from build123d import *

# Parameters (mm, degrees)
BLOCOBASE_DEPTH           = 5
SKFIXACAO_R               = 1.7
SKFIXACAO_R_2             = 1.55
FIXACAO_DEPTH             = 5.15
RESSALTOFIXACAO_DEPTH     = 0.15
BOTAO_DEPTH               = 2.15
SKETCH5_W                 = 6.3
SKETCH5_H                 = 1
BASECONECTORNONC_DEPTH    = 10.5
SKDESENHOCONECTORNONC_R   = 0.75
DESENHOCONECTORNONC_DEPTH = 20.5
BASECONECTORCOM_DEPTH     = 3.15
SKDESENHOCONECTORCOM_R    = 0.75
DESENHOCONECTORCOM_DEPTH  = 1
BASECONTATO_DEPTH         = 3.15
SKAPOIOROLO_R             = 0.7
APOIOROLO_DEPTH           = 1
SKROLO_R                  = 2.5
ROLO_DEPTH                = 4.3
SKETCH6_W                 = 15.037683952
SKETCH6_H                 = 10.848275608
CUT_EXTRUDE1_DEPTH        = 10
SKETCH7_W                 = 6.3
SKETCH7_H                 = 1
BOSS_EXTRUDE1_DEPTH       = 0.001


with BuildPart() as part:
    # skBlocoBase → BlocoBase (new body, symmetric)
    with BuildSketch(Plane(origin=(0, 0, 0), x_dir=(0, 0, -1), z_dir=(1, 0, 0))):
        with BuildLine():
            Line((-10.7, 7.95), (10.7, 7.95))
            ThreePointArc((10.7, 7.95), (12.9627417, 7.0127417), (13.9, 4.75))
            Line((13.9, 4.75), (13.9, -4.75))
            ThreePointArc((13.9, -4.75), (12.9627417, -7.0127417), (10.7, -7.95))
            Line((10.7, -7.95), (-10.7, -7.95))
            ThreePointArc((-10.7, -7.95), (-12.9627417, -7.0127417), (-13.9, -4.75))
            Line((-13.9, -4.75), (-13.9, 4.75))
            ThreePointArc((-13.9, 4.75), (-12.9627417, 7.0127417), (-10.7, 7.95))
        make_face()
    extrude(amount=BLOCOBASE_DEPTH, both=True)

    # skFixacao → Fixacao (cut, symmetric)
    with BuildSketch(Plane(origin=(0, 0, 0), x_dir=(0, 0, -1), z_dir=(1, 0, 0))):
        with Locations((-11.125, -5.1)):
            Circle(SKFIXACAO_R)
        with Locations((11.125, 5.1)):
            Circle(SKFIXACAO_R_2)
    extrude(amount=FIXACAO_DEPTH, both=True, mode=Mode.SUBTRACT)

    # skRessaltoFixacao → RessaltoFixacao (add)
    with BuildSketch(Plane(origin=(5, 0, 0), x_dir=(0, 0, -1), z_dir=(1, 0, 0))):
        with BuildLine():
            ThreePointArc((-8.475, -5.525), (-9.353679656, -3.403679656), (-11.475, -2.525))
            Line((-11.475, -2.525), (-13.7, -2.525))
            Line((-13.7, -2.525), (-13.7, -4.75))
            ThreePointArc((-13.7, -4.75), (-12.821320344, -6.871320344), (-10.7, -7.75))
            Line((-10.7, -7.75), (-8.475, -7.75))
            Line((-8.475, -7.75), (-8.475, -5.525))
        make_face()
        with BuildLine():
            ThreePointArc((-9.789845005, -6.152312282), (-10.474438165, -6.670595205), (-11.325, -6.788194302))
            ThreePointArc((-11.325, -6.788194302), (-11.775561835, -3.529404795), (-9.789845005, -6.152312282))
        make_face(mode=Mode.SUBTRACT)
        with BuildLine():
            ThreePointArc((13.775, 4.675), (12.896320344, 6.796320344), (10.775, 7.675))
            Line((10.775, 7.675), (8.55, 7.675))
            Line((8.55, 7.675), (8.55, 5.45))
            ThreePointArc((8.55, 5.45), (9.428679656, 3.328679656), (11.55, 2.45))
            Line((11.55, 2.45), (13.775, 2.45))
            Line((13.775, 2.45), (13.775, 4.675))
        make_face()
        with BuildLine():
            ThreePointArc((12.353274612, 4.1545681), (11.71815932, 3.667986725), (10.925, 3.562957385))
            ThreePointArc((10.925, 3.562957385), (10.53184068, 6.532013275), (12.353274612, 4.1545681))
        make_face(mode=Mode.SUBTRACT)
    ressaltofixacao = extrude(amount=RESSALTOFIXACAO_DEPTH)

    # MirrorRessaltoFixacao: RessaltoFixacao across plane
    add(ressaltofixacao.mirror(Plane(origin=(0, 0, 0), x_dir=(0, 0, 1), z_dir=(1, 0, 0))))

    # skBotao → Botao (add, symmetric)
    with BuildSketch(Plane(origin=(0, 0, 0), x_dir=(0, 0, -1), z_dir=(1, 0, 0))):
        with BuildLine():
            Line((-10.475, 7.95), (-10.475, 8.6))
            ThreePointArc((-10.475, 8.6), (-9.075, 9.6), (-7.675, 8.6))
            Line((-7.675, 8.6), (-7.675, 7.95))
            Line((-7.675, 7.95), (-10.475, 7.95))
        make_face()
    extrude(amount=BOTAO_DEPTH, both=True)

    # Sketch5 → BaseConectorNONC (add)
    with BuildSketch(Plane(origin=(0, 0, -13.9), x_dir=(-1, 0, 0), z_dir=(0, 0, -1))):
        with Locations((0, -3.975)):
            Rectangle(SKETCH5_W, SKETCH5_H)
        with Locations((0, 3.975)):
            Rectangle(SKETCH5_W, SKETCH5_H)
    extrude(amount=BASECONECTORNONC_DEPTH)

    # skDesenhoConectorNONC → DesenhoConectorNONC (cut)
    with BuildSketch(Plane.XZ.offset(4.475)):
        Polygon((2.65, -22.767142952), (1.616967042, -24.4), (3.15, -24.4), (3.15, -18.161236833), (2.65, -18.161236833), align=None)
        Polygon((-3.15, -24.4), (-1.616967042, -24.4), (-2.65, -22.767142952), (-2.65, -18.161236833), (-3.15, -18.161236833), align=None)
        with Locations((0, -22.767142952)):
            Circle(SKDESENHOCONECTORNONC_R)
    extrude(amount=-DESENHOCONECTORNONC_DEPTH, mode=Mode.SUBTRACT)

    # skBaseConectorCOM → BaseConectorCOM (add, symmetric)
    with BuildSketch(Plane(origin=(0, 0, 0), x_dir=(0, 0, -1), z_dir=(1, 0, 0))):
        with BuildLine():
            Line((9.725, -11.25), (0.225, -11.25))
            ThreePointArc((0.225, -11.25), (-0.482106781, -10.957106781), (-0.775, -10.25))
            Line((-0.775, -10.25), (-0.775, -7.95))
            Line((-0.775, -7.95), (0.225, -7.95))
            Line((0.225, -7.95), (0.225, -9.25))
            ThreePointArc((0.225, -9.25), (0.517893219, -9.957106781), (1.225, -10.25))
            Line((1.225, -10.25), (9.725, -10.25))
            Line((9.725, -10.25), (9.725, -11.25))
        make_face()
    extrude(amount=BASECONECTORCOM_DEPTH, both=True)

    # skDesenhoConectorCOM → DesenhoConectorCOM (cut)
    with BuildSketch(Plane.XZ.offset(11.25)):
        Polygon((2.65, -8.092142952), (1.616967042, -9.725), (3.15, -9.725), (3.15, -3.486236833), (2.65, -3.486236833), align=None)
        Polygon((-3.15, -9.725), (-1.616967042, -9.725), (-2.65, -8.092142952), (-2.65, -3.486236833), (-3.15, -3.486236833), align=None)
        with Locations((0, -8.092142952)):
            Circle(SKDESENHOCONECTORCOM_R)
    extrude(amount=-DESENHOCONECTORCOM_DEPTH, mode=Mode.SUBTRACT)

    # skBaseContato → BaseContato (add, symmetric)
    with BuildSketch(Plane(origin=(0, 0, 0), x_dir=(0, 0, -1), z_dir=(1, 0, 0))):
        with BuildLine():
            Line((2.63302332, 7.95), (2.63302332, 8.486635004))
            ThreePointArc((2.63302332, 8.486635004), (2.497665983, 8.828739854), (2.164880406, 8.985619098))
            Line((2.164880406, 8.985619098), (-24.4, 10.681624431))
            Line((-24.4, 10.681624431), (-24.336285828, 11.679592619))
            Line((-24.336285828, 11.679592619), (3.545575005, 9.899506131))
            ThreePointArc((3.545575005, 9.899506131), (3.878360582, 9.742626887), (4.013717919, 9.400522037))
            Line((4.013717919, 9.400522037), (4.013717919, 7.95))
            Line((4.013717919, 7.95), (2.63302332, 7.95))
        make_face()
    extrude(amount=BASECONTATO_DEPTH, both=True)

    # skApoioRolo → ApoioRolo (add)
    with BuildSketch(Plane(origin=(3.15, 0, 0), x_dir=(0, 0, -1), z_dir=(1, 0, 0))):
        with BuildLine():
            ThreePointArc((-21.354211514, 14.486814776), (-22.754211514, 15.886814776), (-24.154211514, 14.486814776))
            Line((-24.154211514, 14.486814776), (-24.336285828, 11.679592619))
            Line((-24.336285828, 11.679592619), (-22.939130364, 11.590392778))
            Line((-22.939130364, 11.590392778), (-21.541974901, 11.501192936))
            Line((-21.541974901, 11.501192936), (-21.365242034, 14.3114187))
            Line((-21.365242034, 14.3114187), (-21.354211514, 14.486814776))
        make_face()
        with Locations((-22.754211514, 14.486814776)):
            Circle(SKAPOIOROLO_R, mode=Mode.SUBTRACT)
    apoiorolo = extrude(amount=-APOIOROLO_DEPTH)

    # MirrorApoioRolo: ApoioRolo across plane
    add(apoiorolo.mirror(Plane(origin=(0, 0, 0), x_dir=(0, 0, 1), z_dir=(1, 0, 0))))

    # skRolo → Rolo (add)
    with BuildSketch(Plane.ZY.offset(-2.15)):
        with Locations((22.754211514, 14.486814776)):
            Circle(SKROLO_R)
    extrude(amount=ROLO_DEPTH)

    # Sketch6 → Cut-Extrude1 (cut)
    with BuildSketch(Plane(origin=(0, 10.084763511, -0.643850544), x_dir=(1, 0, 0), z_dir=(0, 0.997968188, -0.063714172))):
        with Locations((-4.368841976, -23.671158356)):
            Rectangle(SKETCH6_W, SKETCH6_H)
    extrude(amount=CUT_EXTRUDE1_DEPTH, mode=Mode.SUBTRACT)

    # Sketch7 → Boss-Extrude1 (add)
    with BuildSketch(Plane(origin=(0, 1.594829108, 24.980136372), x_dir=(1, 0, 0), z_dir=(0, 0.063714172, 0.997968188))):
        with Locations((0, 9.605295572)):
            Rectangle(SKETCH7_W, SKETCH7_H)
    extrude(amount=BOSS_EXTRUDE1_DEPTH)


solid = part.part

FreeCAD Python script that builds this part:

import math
import FreeCAD as App
import Part
import Sketcher
from FreeCAD import Vector
Q = App.Units.Quantity


def add_polygon(sketch, points):
    """Adds a closed chain of lines whose ends are joined by coincident constraints."""
    first, n = sketch.GeometryCount, len(points)
    for a, b in zip(points, points[1:] + points[:1]):
        sketch.addGeometry(Part.LineSegment(App.Vector(*a, 0), App.Vector(*b, 0)), False)
    for i in range(n):
        sketch.addConstraint(Sketcher.Constraint("Coincident", first + i, 2, first + (i + 1) % n, 1))

doc = App.newDocument("Part")
body = doc.addObject("PartDesign::Body", "Body")

# Sketch on YZ plane
sketch1 = body.newObject("Sketcher::SketchObject", "Sketch")
sketch1.AttachmentSupport = (doc.getObject("YZ_Plane"), [""])
sketch1.MapMode = "FlatFace"
sketch1.addGeometry([
    Part.LineSegment(Vector(7.95, -10.7, 0), Vector(7.95, 10.7, 0)),  # 0
    Part.ArcOfCircle(Part.Circle(Vector(4.75, 10.7, 0), Vector(0, 0, 1), 3.2), math.radians(0), math.radians(90)),  # 1
    Part.LineSegment(Vector(4.75, 13.9, 0), Vector(-4.75, 13.9, 0)),  # 2
    Part.ArcOfCircle(Part.Circle(Vector(-4.75, 10.7, 0), Vector(0, 0, 1), 3.2), math.radians(90), math.radians(180)),  # 3
    Part.LineSegment(Vector(-7.95, 10.7, 0), Vector(-7.95, -10.7, 0)),  # 4
    Part.ArcOfCircle(Part.Circle(Vector(-4.75, -10.7, 0), Vector(0, 0, 1), 3.2), math.radians(180), math.radians(270)),  # 5
    Part.LineSegment(Vector(-4.75, -13.9, 0), Vector(4.75, -13.9, 0)),  # 6
    Part.ArcOfCircle(Part.Circle(Vector(4.75, -10.7, 0), Vector(0, 0, 1), 3.2), math.radians(-90), math.radians(0)),  # 7
], False)
sketch1.addConstraint([
    Sketcher.Constraint("Tangent", 0, 2, 1, 1),
    Sketcher.Constraint("Tangent", 1, 2, 2, 1),
    Sketcher.Constraint("Tangent", 2, 2, 3, 1),
    Sketcher.Constraint("Tangent", 3, 2, 4, 1),
    Sketcher.Constraint("Tangent", 4, 2, 5, 1),
    Sketcher.Constraint("Tangent", 5, 2, 6, 1),
    Sketcher.Constraint("Tangent", 6, 2, 7, 1),
    Sketcher.Constraint("Tangent", 7, 2, 0, 1),
    Sketcher.Constraint("Vertical", 0),
    Sketcher.Constraint("Horizontal", 2),
    Sketcher.Constraint("Vertical", 4),
    Sketcher.Constraint("Horizontal", 6),
    Sketcher.Constraint("Equal", 1, 3),
    Sketcher.Constraint("Equal", 3, 5),
    Sketcher.Constraint("Equal", 5, 7),
    Sketcher.Constraint("Symmetric", 1, 3, 5, 3, -1, 1),
    Sketcher.Constraint("Radius", 1, Q("3.2 mm")),
    Sketcher.Constraint("DistanceX", 2, 2, 2, 1, Q("9.5 mm")),
    Sketcher.Constraint("DistanceY", 0, 1, 0, 2, Q("21.4 mm")),
])
pad1 = body.newObject("PartDesign::Pad", "Pad")
pad1.Profile = sketch1
pad1.Length = 10
pad1.Midplane = True

# Sketch on YZ plane
sketch2 = body.newObject("Sketcher::SketchObject", "Sketch001")
sketch2.AttachmentSupport = (doc.getObject("YZ_Plane"), [""])
sketch2.MapMode = "FlatFace"
sketch2.addGeometry([
    Part.Circle(Vector(-5.1, 11.125, 0), Vector(0, 0, 1), 1.7),
    Part.Circle(Vector(5.1, -11.125, 0), Vector(0, 0, 1), 1.55),
], False)
sketch2.addConstraint([
    Sketcher.Constraint("Symmetric", 0, 3, 1, 3, -1, 1),
    Sketcher.Constraint("Diameter", 0, Q("3.4 mm")),
    Sketcher.Constraint("Diameter", 1, Q("3.1 mm")),
    Sketcher.Constraint("DistanceX", 0, 3, -1, 1, Q("5.1 mm")),
    Sketcher.Constraint("DistanceY", 1, 3, 0, 3, Q("22.25 mm")),
])
pocket1 = body.newObject("PartDesign::Pocket", "Pocket")
pocket1.Profile = sketch2
pocket1.Length = 10.3
pocket1.Midplane = True

# Sketch on YZ plane
sketch3 = body.newObject("Sketcher::SketchObject", "Sketch002")
sketch3.AttachmentSupport = (doc.getObject("YZ_Plane"), [""])
sketch3.MapMode = "FlatFace"
sketch3.AttachmentOffset = App.Placement(Vector(0, 0, 5), App.Rotation())
sketch3.addGeometry([
    Part.ArcOfCircle(Part.Circle(Vector(-5.525, 11.475, 0), Vector(0, 0, 1), 3), math.radians(-90), math.radians(0)),  # 0
    Part.LineSegment(Vector(-2.525, 11.475, 0), Vector(-2.525, 13.7, 0)),  # 1
    Part.LineSegment(Vector(-2.525, 13.7, 0), Vector(-4.75, 13.7, 0)),  # 2
    Part.ArcOfCircle(Part.Circle(Vector(-4.75, 10.7, 0), Vector(0, 0, 1), 3), math.radians(90), math.radians(180)),  # 3
    Part.LineSegment(Vector(-7.75, 10.7, 0), Vector(-7.75, 8.475, 0)),  # 4
    Part.LineSegment(Vector(-7.75, 8.475, 0), Vector(-5.525, 8.475, 0)),  # 5
    Part.ArcOfCircle(Part.Circle(Vector(-5.1, 11.125, 0), Vector(0, 0, 1), 1.7), math.radians(-128.243673), math.radians(173.243673)),  # 6
    Part.ArcOfCircle(Part.Circle(Vector(-5.1, 11.125, 0), Vector(0, 0, 1), 1.7), math.radians(173.243673), math.radians(231.756327)),  # 7
    Part.ArcOfCircle(Part.Circle(Vector(4.675, -10.775, 0), Vector(0, 0, 1), 3), math.radians(-90), math.radians(0)),  # 8
    Part.LineSegment(Vector(7.675, -10.775, 0), Vector(7.675, -8.55, 0)),  # 9
    Part.LineSegment(Vector(7.675, -8.55, 0), Vector(5.45, -8.55, 0)),  # 10
    Part.ArcOfCircle(Part.Circle(Vector(5.45, -11.55, 0), Vector(0, 0, 1), 3), math.radians(90), math.radians(180)),  # 11
    Part.LineSegment(Vector(2.45, -11.55, 0), Vector(2.45, -13.775, 0)),  # 12
    Part.LineSegment(Vector(2.45, -13.775, 0), Vector(4.675, -13.775, 0)),  # 13
    Part.ArcOfCircle(Part.Circle(Vector(5.1, -11.125, 0), Vector(0, 0, 1), 1.55), math.radians(-127.586326), math.radians(172.586326)),  # 14
    Part.ArcOfCircle(Part.Circle(Vector(5.1, -11.125, 0), Vector(0, 0, 1), 1.55), math.radians(172.586326), math.radians(232.413674)),  # 15
], False)
sketch3.addConstraint([
    Sketcher.Constraint("Tangent", 0, 2, 1, 1),
    Sketcher.Constraint("Coincident", 1, 2, 2, 1),
    Sketcher.Constraint("Tangent", 2, 2, 3, 1),
    Sketcher.Constraint("Tangent", 3, 2, 4, 1),
    Sketcher.Constraint("Coincident", 4, 2, 5, 1),
    Sketcher.Constraint("Tangent", 5, 2, 0, 1),
    Sketcher.Constraint("Tangent", 6, 1, 7, 2),
    Sketcher.Constraint("Coincident", 7, 1, 6, 2),
    Sketcher.Constraint("Tangent", 8, 2, 9, 1),
    Sketcher.Constraint("Coincident", 9, 2, 10, 1),
    Sketcher.Constraint("Tangent", 10, 2, 11, 1),
    Sketcher.Constraint("Tangent", 11, 2, 12, 1),
    Sketcher.Constraint("Coincident", 12, 2, 13, 1),
    Sketcher.Constraint("Tangent", 13, 2, 8, 1),
    Sketcher.Constraint("Tangent", 14, 1, 15, 2),
    Sketcher.Constraint("Coincident", 15, 1, 14, 2),
    Sketcher.Constraint("Vertical", 1),
    Sketcher.Constraint("Horizontal", 2),
    Sketcher.Constraint("Vertical", 4),
    Sketcher.Constraint("Horizontal", 5),
    Sketcher.Constraint("Vertical", 9),
    Sketcher.Constraint("Horizontal", 10),
    Sketcher.Constraint("Vertical", 12),
    Sketcher.Constraint("Horizontal", 13),
    Sketcher.Constraint("Equal", 0, 3),
    Sketcher.Constraint("Equal", 3, 8),
    Sketcher.Constraint("Equal", 8, 11),
    Sketcher.Constraint("Symmetric", 6, 3, 14, 3, -1, 1),
    Sketcher.Constraint("Equal", 5, 10),
    Sketcher.Constraint("Equal", 13, 1),
    Sketcher.Constraint("Equal", 4, 9),
    Sketcher.Constraint("Radius", 0, Q("3 mm")),
    Sketcher.Constraint("Radius", 6, Q("1.7 mm")),
    Sketcher.Constraint("Radius", 14, Q("1.55 mm")),
    Sketcher.Constraint("DistanceY", -1, 1, 3, 3, Q("10.7 mm")),
    Sketcher.Constraint("DistanceX", 6, 3, -1, 1, Q("5.1 mm")),
    Sketcher.Constraint("DistanceY", 8, 3, 6, 3, Q("21.9 mm")),
    Sketcher.Constraint("DistanceX", 0, 3, 8, 3, Q("10.2 mm")),
    Sketcher.Constraint("DistanceY", 6, 3, 7, 1, Q("0.2 mm")),
    Sketcher.Constraint("DistanceY", 14, 3, 15, 1, Q("0.2 mm")),
    Sketcher.Constraint("DistanceX", 2, 2, 2, 1, Q("2.225 mm")),
    Sketcher.Constraint("DistanceX", 3, 3, -1, 1, Q("4.75 mm")),
    Sketcher.Constraint("DistanceY", 11, 3, -1, 1, Q("11.55 mm")),
    Sketcher.Constraint("DistanceX", -1, 1, 14, 1, Q("4.154568 mm")),
    Sketcher.Constraint("DistanceX", 6, 1, -1, 1, Q("6.152312 mm")),
])
pad2 = body.newObject("PartDesign::Pad", "Pad001")
pad2.Profile = sketch3
pad2.Length = 0.15
doc.recompute()

mirrored = body.newObject("PartDesign::Mirrored", "Mirrored")
mirrored.Originals = [pad2]
mirrored.MirrorPlane = (doc.getObject("YZ_Plane"), [""])
body.Tip = mirrored

# Sketch on YZ plane
sketch4 = body.newObject("Sketcher::SketchObject", "Sketch003")
sketch4.AttachmentSupport = (doc.getObject("YZ_Plane"), [""])
sketch4.MapMode = "FlatFace"
sketch4.addGeometry([
    Part.LineSegment(Vector(8.6, 10.475, 0), Vector(7.95, 10.475, 0)),
    Part.LineSegment(Vector(7.95, 10.475, 0), Vector(7.95, 7.675, 0)),
    Part.LineSegment(Vector(7.95, 7.675, 0), Vector(8.6, 7.675, 0)),
    Part.ArcOfCircle(Part.Circle(Vector(8.12, 9.075, 0), Vector(0, 0, 1), 1.48), math.radians(-71.075356), math.radians(71.075356)),
], False)
sketch4.addConstraint([
    Sketcher.Constraint("Coincident", 0, 2, 1, 1),
    Sketcher.Constraint("Coincident", 1, 2, 2, 1),
    Sketcher.Constraint("Coincident", 2, 2, 3, 1),
    Sketcher.Constraint("Coincident", 3, 2, 0, 1),
    Sketcher.Constraint("Horizontal", 0),
    Sketcher.Constraint("Vertical", 1),
    Sketcher.Constraint("Horizontal", 2),
    Sketcher.Constraint("Vertical", 2, 2, 3, 2),
    Sketcher.Constraint("Radius", 3, Q("1.48 mm")),
    Sketcher.Constraint("DistanceY", 1, 2, 1, 1, Q("2.8 mm")),
    Sketcher.Constraint("DistanceX", 0, 2, 0, 1, Q("0.65 mm")),
    Sketcher.Constraint("DistanceX", -1, 1, 2, 2, Q("8.6 mm")),
    Sketcher.Constraint("DistanceY", -1, 1, 3, 3, Q("9.075 mm")),
])
pad3 = body.newObject("PartDesign::Pad", "Pad002")
pad3.Profile = sketch4
pad3.Length = 4.3
pad3.Midplane = True

# Sketch on XY plane
sketch5 = body.newObject("Sketcher::SketchObject", "Sketch004")
sketch5.AttachmentSupport = (doc.getObject("XY_Plane"), [""])
sketch5.MapMode = "FlatFace"
sketch5.AttachmentOffset = App.Placement(Vector(0, 0, -13.9), App.Rotation())
add_polygon(sketch5, [(3.15, -3.475), (3.15, -4.475), (-3.15, -4.475), (-3.15, -3.475)])  # lines 0-3
add_polygon(sketch5, [(3.15, 4.475), (3.15, 3.475), (-3.15, 3.475), (-3.15, 4.475)])  # lines 4-7
sketch5.addConstraint([
    Sketcher.Constraint("Vertical", 0),
    Sketcher.Constraint("Horizontal", 1),
    Sketcher.Constraint("Vertical", 2),
    Sketcher.Constraint("Horizontal", 3),
    Sketcher.Constraint("Vertical", 4),
    Sketcher.Constraint("Horizontal", 5),
    Sketcher.Constraint("Vertical", 6),
    Sketcher.Constraint("Horizontal", 7),
    Sketcher.Constraint("Symmetric", 2, 2, 4, 2, -1, 1),
    Sketcher.Constraint("Symmetric", 0, 2, 6, 2, -1, 1),
    Sketcher.Constraint("Vertical", 3, 2, 4, 2),
    Sketcher.Constraint("DistanceY", 0, 2, 0, 1, Q("1 mm")),
    Sketcher.Constraint("DistanceX", 1, 2, 1, 1, Q("6.3 mm")),
    Sketcher.Constraint("DistanceY", 3, 2, 4, 2, Q("6.95 mm")),
])
pad4 = body.newObject("PartDesign::Pad", "Pad003")
pad4.Profile = sketch5
pad4.Length = 10.5
pad4.Reversed = True

# Sketch on XZ plane
sketch6 = body.newObject("Sketcher::SketchObject", "Sketch005")
sketch6.AttachmentSupport = (doc.getObject("XZ_Plane"), [""])
sketch6.MapMode = "FlatFace"
sketch6.AttachmentOffset = App.Placement(Vector(0, 0, 4.475), App.Rotation())
add_polygon(sketch6, [(2.65, -22.767143), (1.616967, -24.4), (3.15, -24.4), (3.15, -18.161237), (2.65, -18.161237)])  # lines 0-4
add_polygon(sketch6, [(-3.15, -24.4), (-1.616967, -24.4), (-2.65, -22.767143), (-2.65, -18.161237), (-3.15, -18.161237)])  # lines 5-9
sketch6.addGeometry(Part.Circle(Vector(0, -22.767143, 0), Vector(0, 0, 1), 0.75), False)  # 10
sketch6.addConstraint([
    Sketcher.Constraint("Horizontal", 1),
    Sketcher.Constraint("Vertical", 2),
    Sketcher.Constraint("Horizontal", 3),
    Sketcher.Constraint("Vertical", 4),
    Sketcher.Constraint("Horizontal", 5),
    Sketcher.Constraint("Vertical", 7),
    Sketcher.Constraint("Horizontal", 8),
    Sketcher.Constraint("Vertical", 9),
    Sketcher.Constraint("Symmetric", 0, 2, 5, 2, -2),
    Sketcher.Constraint("Symmetric", 4, 2, 6, 2, -2),
    Sketcher.Constraint("Symmetric", 2, 2, 8, 2, -2),
    Sketcher.Constraint("PointOnObject", 10, 3, -2),
    Sketcher.Constraint("Horizontal", 10, 3, 4, 2),
    Sketcher.Constraint("Diameter", 10, Q("1.5 mm")),
    Sketcher.Constraint("DistanceX", 3, 2, 3, 1, Q("0.5 mm")),
    Sketcher.Constraint("DistanceY", 0, 2, -1, 1, Q("24.4 mm")),
    Sketcher.Constraint("DistanceX", 6, 2, 4, 2, Q("5.3 mm")),
    Sketcher.Constraint("DistanceX", 1, 1, 1, 2, Q("1.533033 mm")),
    Sketcher.Constraint("DistanceY", 2, 1, 2, 2, Q("6.238763 mm")),
    Sketcher.Constraint("DistanceY", 4, 2, 4, 1, Q("4.605906 mm")),
])
pocket2 = body.newObject("PartDesign::Pocket", "Pocket001")
pocket2.Profile = sketch6
pocket2.Length = 20.5

# Sketch on YZ plane
sketch7 = body.newObject("Sketcher::SketchObject", "Sketch006")
sketch7.AttachmentSupport = (doc.getObject("YZ_Plane"), [""])
sketch7.MapMode = "FlatFace"
sketch7.addGeometry([
    Part.LineSegment(Vector(-11.25, -0.225, 0), Vector(-11.25, -9.725, 0)),  # 0
    Part.LineSegment(Vector(-11.25, -9.725, 0), Vector(-10.25, -9.725, 0)),  # 1
    Part.LineSegment(Vector(-10.25, -9.725, 0), Vector(-10.25, -1.225, 0)),  # 2
    Part.ArcOfCircle(Part.Circle(Vector(-9.25, -1.225, 0), Vector(0, 0, 1), 1), math.radians(90), math.radians(180)),  # 3
    Part.LineSegment(Vector(-9.25, -0.225, 0), Vector(-7.95, -0.225, 0)),  # 4
    Part.LineSegment(Vector(-7.95, -0.225, 0), Vector(-7.95, 0.775, 0)),  # 5
    Part.LineSegment(Vector(-7.95, 0.775, 0), Vector(-10.25, 0.775, 0)),  # 6
    Part.ArcOfCircle(Part.Circle(Vector(-10.25, -0.225, 0), Vector(0, 0, 1), 1), math.radians(90), math.radians(180)),  # 7
], False)
sketch7.addConstraint([
    Sketcher.Constraint("Coincident", 0, 2, 1, 1),
    Sketcher.Constraint("Coincident", 1, 2, 2, 1),
    Sketcher.Constraint("Tangent", 2, 2, 3, 2),
    Sketcher.Constraint("Tangent", 3, 1, 4, 1),
    Sketcher.Constraint("Coincident", 4, 2, 5, 1),
    Sketcher.Constraint("Coincident", 5, 2, 6, 1),
    Sketcher.Constraint("Tangent", 6, 2, 7, 1),
    Sketcher.Constraint("Tangent", 7, 2, 0, 1),
    Sketcher.Constraint("Vertical", 0),
    Sketcher.Constraint("Horizontal", 1),
    Sketcher.Constraint("Vertical", 2),
    Sketcher.Constraint("Horizontal", 4),
    Sketcher.Constraint("Vertical", 5),
    Sketcher.Constraint("Horizontal", 6),
    Sketcher.Constraint("Equal", 3, 7),
    Sketcher.Constraint("Horizontal", 7, 3, 3, 1),
    Sketcher.Constraint("Vertical", 7, 3, 1, 2),
    Sketcher.Constraint("Radius", 3, Q("1 mm")),
    Sketcher.Constraint("DistanceX", 4, 1, 4, 2, Q("1.3 mm")),
    Sketcher.Constraint("DistanceY", 0, 2, 0, 1, Q("9.5 mm")),
    Sketcher.Constraint("DistanceX", 3, 3, -1, 1, Q("9.25 mm")),
    Sketcher.Constraint("DistanceY", 3, 3, -1, 1, Q("1.225 mm")),
])
pad5 = body.newObject("PartDesign::Pad", "Pad004")
pad5.Profile = sketch7
pad5.Length = 6.3
pad5.Midplane = True

# Sketch on XZ plane
sketch8 = body.newObject("Sketcher::SketchObject", "Sketch007")
sketch8.AttachmentSupport = (doc.getObject("XZ_Plane"), [""])
sketch8.MapMode = "FlatFace"
sketch8.AttachmentOffset = App.Placement(Vector(0, 0, 11.25), App.Rotation())
add_polygon(sketch8, [(2.65, -8.092143), (1.616967, -9.725), (3.15, -9.725), (3.15, -3.486237), (2.65, -3.486237)])  # lines 0-4
add_polygon(sketch8, [(-3.15, -9.725), (-1.616967, -9.725), (-2.65, -8.092143), (-2.65, -3.486237), (-3.15, -3.486237)])  # lines 5-9
sketch8.addGeometry(Part.Circle(Vector(0, -8.092143, 0), Vector(0, 0, 1), 0.75), False)  # 10
sketch8.addConstraint([
    Sketcher.Constraint("Horizontal", 1),
    Sketcher.Constraint("Vertical", 2),
    Sketcher.Constraint("Horizontal", 3),
    Sketcher.Constraint("Vertical", 4),
    Sketcher.Constraint("Horizontal", 5),
    Sketcher.Constraint("Vertical", 7),
    Sketcher.Constraint("Horizontal", 8),
    Sketcher.Constraint("Vertical", 9),
    Sketcher.Constraint("Symmetric", 0, 2, 5, 2, -2),
    Sketcher.Constraint("Symmetric", 4, 2, 6, 2, -2),
    Sketcher.Constraint("Symmetric", 2, 2, 8, 2, -2),
    Sketcher.Constraint("PointOnObject", 10, 3, -2),
    Sketcher.Constraint("Horizontal", 10, 3, 4, 2),
    Sketcher.Constraint("Diameter", 10, Q("1.5 mm")),
    Sketcher.Constraint("DistanceX", 3, 2, 3, 1, Q("0.5 mm")),
    Sketcher.Constraint("DistanceX", 6, 2, 4, 2, Q("5.3 mm")),
    Sketcher.Constraint("DistanceY", 0, 2, -1, 1, Q("9.725 mm")),
    Sketcher.Constraint("DistanceX", 1, 1, 1, 2, Q("1.533033 mm")),
    Sketcher.Constraint("DistanceY", 2, 1, 2, 2, Q("6.238763 mm")),
    Sketcher.Constraint("DistanceY", 4, 2, 4, 1, Q("4.605906 mm")),
])
pocket3 = body.newObject("PartDesign::Pocket", "Pocket002")
pocket3.Profile = sketch8
pocket3.Length = 1

# Sketch on YZ plane
sketch9 = body.newObject("Sketcher::SketchObject", "Sketch008")
sketch9.AttachmentSupport = (doc.getObject("YZ_Plane"), [""])
sketch9.MapMode = "FlatFace"
sketch9.addGeometry([
    Part.LineSegment(Vector(8.486635, -2.633023, 0), Vector(7.95, -2.633023, 0)),  # 0
    Part.LineSegment(Vector(7.95, -2.633023, 0), Vector(7.95, -4.013718, 0)),  # 1
    Part.LineSegment(Vector(7.95, -4.013718, 0), Vector(9.400522, -4.013718, 0)),  # 2
    Part.ArcOfCircle(Part.Circle(Vector(9.400522, -3.513718, 0), Vector(0, 0, 1), 0.5), math.radians(-90), math.radians(-3.653028)),  # 3
    Part.LineSegment(Vector(9.899506, -3.545575, 0), Vector(11.679593, 24.336286, 0)),  # 4
    Part.LineSegment(Vector(11.679593, 24.336286, 0), Vector(10.681624, 24.4, 0)),  # 5
    Part.LineSegment(Vector(10.681624, 24.4, 0), Vector(8.985619, -2.16488, 0)),  # 6
    Part.ArcOfCircle(Part.Circle(Vector(8.486635, -2.133023, 0), Vector(0, 0, 1), 0.5), math.radians(-90), math.radians(-3.653028)),  # 7
], False)
sketch9.addConstraint([
    Sketcher.Constraint("Coincident", 0, 2, 1, 1),
    Sketcher.Constraint("Coincident", 1, 2, 2, 1),
    Sketcher.Constraint("Tangent", 2, 2, 3, 1),
    Sketcher.Constraint("Tangent", 3, 2, 4, 1),
    Sketcher.Constraint("Coincident", 4, 2, 5, 1),
    Sketcher.Constraint("Coincident", 5, 2, 6, 1),
    Sketcher.Constraint("Tangent", 6, 2, 7, 2),
    Sketcher.Constraint("Tangent", 7, 1, 0, 1),
    Sketcher.Constraint("Horizontal", 0),
    Sketcher.Constraint("Vertical", 1),
    Sketcher.Constraint("Horizontal", 2),
    Sketcher.Constraint("Equal", 3, 7),
    Sketcher.Constraint("Perpendicular", 4, 5),
    Sketcher.Constraint("Perpendicular", 5, 6),
    Sketcher.Constraint("Radius", 3, Q("0.5 mm")),
    Sketcher.Constraint("Distance", 5, Q("1 mm")),
    Sketcher.Constraint("DistanceY", -1, 1, 5, 2, Q("24.4 mm")),
    Sketcher.Constraint("DistanceX", -1, 1, 0, 2, Q("7.95 mm")),
    Sketcher.Constraint("DistanceX", 0, 2, 0, 1, Q("0.536635 mm")),
    Sketcher.Constraint("DistanceX", 2, 1, 2, 2, Q("1.450522 mm")),
    Sketcher.Constraint("DistanceY", 1, 2, 1, 1, Q("1.380695 mm")),
    Sketcher.Constraint("DistanceY", 6, 2, -1, 1, Q("2.16488 mm")),
])
pad6 = body.newObject("PartDesign::Pad", "Pad005")
pad6.Profile = sketch9
pad6.Length = 6.3
pad6.Midplane = True

# Sketch on YZ plane
sketch10 = body.newObject("Sketcher::SketchObject", "Sketch009")
sketch10.AttachmentSupport = (doc.getObject("YZ_Plane"), [""])
sketch10.MapMode = "FlatFace"
sketch10.AttachmentOffset = App.Placement(Vector(0, 0, 3.15), App.Rotation())
sketch10.addGeometry([
    Part.ArcOfCircle(Part.Circle(Vector(14.486815, 22.754212, 0), Vector(0, 0, 1), 1.4), math.radians(-90), math.radians(90)),  # 0
    Part.LineSegment(Vector(14.486815, 24.154212, 0), Vector(11.679593, 24.336286, 0)),  # 1
    Part.LineSegment(Vector(11.679593, 24.336286, 0), Vector(11.590393, 22.93913, 0)),  # 2
    Part.LineSegment(Vector(11.590393, 22.93913, 0), Vector(11.501193, 21.541975, 0)),  # 3
    Part.LineSegment(Vector(11.501193, 21.541975, 0), Vector(14.311419, 21.365242, 0)),  # 4
    Part.LineSegment(Vector(14.311419, 21.365242, 0), Vector(14.486815, 21.354212, 0)),  # 5
    Part.Circle(Vector(14.486815, 22.754212, 0), Vector(0, 0, 1), 0.7),  # 6
], False)
sketch10.addConstraint([
    Sketcher.Constraint("Coincident", 0, 2, 1, 1),
    Sketcher.Constraint("Coincident", 1, 2, 2, 1),
    Sketcher.Constraint("Coincident", 2, 2, 3, 1),
    Sketcher.Constraint("Coincident", 3, 2, 4, 1),
    Sketcher.Constraint("Coincident", 4, 2, 5, 1),
    Sketcher.Constraint("Coincident", 5, 2, 0, 1),
    Sketcher.Constraint("Coincident", 6, 3, 0, 3),
    Sketcher.Constraint("Parallel", 2, 3),
    Sketcher.Constraint("Parallel", 4, 5),
    Sketcher.Constraint("Vertical", 6, 3, 0, 2),
    Sketcher.Constraint("Vertical", 0, 2, 5, 2),
    Sketcher.Constraint("Equal", 2, 3),
    Sketcher.Constraint("Diameter", 6, Q("1.4 mm")),
    Sketcher.Constraint("Radius", 0, Q("1.4 mm")),
    Sketcher.Constraint("Distance", 2, Q("1.4 mm")),
    Sketcher.Constraint("DistanceX", 2, 2, 1, 2, Q("0.0892 mm")),
    Sketcher.Constraint("Distance", 1, Q("2.813121 mm")),
    Sketcher.Constraint("DistanceY", -1, 1, 0, 3, Q("22.754212 mm")),
    Sketcher.Constraint("DistanceY", -1, 1, 2, 2, Q("22.93913 mm")),
    Sketcher.Constraint("DistanceX", -1, 1, 4, 2, Q("14.311419 mm")),
    Sketcher.Constraint("DistanceY", 4, 2, 0, 3, Q("1.388969 mm")),
])
pad7 = body.newObject("PartDesign::Pad", "Pad006")
pad7.Profile = sketch10
pad7.Length = 1
pad7.Reversed = True
doc.recompute()

mirrored2 = body.newObject("PartDesign::Mirrored", "Mirrored001")
mirrored2.Originals = [pad7]
mirrored2.MirrorPlane = (doc.getObject("YZ_Plane"), [""])
body.Tip = mirrored2

# Sketch on YZ plane
sketch11 = body.newObject("Sketcher::SketchObject", "Sketch010")
sketch11.AttachmentSupport = (doc.getObject("YZ_Plane"), [""])
sketch11.MapMode = "FlatFace"
sketch11.AttachmentOffset = App.Placement(Vector(0, 0, 2.15), App.Rotation())
sketch11.addGeometry(Part.Circle(Vector(14.486815, 22.754212, 0), Vector(0, 0, 1), 2.5), False)
sketch11.addConstraint([
    Sketcher.Constraint("Diameter", 0, Q("5 mm")),
    Sketcher.Constraint("DistanceY", -1, 1, 0, 3, Q("22.754212 mm")),
    Sketcher.Constraint("DistanceX", -1, 1, 0, 3, Q("14.486815 mm")),
])
pad8 = body.newObject("PartDesign::Pad", "Pad007")
pad8.Profile = sketch11
pad8.Length = 4.3
pad8.Reversed = True

# Sketch on an angled plane
sketch12 = body.newObject("Sketcher::SketchObject", "Sketch011")
sketch12.Placement = App.Placement(Vector(0, 10.084764, -0.643851), App.Rotation(Vector(1, 0, 0), Vector(0, -0.063714172, -0.997968188), Vector(0, 0.997968188, -0.063714172), "ZXY"))
add_polygon(sketch12, [(-11.887684, -18.247021), (-11.887684, -29.095296), (3.15, -29.095296), (3.15, -18.247021)])  # lines 0-3
sketch12.addConstraint([
    Sketcher.Constraint("Vertical", 0),
    Sketcher.Constraint("Horizontal", 1),
    Sketcher.Constraint("Vertical", 2),
    Sketcher.Constraint("Horizontal", 3),
    Sketcher.Constraint("DistanceX", -1, 1, 1, 2, Q("3.15 mm")),
    Sketcher.Constraint("DistanceX", 1, 1, 1, 2, Q("15.037684 mm")),
    Sketcher.Constraint("DistanceY", 0, 2, 0, 1, Q("10.848276 mm")),
    Sketcher.Constraint("DistanceY", 2, 2, -1, 1, Q("18.247021 mm")),
])
pocket4 = body.newObject("PartDesign::Pocket", "Pocket003")
pocket4.Profile = sketch12
pocket4.Length = 10
pocket4.Reversed = True

# Sketch on an angled plane
sketch13 = body.newObject("Sketcher::SketchObject", "Sketch012")
sketch13.Placement = App.Placement(Vector(0, 1.594829, 24.980136), App.Rotation(Vector(1, 0, 0), Vector(0, 0.997968188, -0.063714172), Vector(0, 0.063714172, 0.997968188), "ZXY"))
add_polygon(sketch13, [(-3.15, 10.105296), (-3.15, 9.105296), (3.15, 9.105296), (3.15, 10.105296)])  # lines 0-3
sketch13.addConstraint([
    Sketcher.Constraint("Vertical", 0),
    Sketcher.Constraint("Horizontal", 1),
    Sketcher.Constraint("Vertical", 2),
    Sketcher.Constraint("Horizontal", 3),
    Sketcher.Constraint("DistanceY", 0, 2, 0, 1, Q("1 mm")),
    Sketcher.Constraint("DistanceX", 1, 1, 1, 2, Q("6.3 mm")),
    Sketcher.Constraint("DistanceX", 0, 2, -1, 1, Q("3.15 mm")),
    Sketcher.Constraint("DistanceY", -1, 1, 0, 2, Q("9.105296 mm")),
])
pad9 = body.newObject("PartDesign::Pad", "Pad008")
pad9.Profile = sketch13
pad9.Length = 0.001

doc.recompute()
